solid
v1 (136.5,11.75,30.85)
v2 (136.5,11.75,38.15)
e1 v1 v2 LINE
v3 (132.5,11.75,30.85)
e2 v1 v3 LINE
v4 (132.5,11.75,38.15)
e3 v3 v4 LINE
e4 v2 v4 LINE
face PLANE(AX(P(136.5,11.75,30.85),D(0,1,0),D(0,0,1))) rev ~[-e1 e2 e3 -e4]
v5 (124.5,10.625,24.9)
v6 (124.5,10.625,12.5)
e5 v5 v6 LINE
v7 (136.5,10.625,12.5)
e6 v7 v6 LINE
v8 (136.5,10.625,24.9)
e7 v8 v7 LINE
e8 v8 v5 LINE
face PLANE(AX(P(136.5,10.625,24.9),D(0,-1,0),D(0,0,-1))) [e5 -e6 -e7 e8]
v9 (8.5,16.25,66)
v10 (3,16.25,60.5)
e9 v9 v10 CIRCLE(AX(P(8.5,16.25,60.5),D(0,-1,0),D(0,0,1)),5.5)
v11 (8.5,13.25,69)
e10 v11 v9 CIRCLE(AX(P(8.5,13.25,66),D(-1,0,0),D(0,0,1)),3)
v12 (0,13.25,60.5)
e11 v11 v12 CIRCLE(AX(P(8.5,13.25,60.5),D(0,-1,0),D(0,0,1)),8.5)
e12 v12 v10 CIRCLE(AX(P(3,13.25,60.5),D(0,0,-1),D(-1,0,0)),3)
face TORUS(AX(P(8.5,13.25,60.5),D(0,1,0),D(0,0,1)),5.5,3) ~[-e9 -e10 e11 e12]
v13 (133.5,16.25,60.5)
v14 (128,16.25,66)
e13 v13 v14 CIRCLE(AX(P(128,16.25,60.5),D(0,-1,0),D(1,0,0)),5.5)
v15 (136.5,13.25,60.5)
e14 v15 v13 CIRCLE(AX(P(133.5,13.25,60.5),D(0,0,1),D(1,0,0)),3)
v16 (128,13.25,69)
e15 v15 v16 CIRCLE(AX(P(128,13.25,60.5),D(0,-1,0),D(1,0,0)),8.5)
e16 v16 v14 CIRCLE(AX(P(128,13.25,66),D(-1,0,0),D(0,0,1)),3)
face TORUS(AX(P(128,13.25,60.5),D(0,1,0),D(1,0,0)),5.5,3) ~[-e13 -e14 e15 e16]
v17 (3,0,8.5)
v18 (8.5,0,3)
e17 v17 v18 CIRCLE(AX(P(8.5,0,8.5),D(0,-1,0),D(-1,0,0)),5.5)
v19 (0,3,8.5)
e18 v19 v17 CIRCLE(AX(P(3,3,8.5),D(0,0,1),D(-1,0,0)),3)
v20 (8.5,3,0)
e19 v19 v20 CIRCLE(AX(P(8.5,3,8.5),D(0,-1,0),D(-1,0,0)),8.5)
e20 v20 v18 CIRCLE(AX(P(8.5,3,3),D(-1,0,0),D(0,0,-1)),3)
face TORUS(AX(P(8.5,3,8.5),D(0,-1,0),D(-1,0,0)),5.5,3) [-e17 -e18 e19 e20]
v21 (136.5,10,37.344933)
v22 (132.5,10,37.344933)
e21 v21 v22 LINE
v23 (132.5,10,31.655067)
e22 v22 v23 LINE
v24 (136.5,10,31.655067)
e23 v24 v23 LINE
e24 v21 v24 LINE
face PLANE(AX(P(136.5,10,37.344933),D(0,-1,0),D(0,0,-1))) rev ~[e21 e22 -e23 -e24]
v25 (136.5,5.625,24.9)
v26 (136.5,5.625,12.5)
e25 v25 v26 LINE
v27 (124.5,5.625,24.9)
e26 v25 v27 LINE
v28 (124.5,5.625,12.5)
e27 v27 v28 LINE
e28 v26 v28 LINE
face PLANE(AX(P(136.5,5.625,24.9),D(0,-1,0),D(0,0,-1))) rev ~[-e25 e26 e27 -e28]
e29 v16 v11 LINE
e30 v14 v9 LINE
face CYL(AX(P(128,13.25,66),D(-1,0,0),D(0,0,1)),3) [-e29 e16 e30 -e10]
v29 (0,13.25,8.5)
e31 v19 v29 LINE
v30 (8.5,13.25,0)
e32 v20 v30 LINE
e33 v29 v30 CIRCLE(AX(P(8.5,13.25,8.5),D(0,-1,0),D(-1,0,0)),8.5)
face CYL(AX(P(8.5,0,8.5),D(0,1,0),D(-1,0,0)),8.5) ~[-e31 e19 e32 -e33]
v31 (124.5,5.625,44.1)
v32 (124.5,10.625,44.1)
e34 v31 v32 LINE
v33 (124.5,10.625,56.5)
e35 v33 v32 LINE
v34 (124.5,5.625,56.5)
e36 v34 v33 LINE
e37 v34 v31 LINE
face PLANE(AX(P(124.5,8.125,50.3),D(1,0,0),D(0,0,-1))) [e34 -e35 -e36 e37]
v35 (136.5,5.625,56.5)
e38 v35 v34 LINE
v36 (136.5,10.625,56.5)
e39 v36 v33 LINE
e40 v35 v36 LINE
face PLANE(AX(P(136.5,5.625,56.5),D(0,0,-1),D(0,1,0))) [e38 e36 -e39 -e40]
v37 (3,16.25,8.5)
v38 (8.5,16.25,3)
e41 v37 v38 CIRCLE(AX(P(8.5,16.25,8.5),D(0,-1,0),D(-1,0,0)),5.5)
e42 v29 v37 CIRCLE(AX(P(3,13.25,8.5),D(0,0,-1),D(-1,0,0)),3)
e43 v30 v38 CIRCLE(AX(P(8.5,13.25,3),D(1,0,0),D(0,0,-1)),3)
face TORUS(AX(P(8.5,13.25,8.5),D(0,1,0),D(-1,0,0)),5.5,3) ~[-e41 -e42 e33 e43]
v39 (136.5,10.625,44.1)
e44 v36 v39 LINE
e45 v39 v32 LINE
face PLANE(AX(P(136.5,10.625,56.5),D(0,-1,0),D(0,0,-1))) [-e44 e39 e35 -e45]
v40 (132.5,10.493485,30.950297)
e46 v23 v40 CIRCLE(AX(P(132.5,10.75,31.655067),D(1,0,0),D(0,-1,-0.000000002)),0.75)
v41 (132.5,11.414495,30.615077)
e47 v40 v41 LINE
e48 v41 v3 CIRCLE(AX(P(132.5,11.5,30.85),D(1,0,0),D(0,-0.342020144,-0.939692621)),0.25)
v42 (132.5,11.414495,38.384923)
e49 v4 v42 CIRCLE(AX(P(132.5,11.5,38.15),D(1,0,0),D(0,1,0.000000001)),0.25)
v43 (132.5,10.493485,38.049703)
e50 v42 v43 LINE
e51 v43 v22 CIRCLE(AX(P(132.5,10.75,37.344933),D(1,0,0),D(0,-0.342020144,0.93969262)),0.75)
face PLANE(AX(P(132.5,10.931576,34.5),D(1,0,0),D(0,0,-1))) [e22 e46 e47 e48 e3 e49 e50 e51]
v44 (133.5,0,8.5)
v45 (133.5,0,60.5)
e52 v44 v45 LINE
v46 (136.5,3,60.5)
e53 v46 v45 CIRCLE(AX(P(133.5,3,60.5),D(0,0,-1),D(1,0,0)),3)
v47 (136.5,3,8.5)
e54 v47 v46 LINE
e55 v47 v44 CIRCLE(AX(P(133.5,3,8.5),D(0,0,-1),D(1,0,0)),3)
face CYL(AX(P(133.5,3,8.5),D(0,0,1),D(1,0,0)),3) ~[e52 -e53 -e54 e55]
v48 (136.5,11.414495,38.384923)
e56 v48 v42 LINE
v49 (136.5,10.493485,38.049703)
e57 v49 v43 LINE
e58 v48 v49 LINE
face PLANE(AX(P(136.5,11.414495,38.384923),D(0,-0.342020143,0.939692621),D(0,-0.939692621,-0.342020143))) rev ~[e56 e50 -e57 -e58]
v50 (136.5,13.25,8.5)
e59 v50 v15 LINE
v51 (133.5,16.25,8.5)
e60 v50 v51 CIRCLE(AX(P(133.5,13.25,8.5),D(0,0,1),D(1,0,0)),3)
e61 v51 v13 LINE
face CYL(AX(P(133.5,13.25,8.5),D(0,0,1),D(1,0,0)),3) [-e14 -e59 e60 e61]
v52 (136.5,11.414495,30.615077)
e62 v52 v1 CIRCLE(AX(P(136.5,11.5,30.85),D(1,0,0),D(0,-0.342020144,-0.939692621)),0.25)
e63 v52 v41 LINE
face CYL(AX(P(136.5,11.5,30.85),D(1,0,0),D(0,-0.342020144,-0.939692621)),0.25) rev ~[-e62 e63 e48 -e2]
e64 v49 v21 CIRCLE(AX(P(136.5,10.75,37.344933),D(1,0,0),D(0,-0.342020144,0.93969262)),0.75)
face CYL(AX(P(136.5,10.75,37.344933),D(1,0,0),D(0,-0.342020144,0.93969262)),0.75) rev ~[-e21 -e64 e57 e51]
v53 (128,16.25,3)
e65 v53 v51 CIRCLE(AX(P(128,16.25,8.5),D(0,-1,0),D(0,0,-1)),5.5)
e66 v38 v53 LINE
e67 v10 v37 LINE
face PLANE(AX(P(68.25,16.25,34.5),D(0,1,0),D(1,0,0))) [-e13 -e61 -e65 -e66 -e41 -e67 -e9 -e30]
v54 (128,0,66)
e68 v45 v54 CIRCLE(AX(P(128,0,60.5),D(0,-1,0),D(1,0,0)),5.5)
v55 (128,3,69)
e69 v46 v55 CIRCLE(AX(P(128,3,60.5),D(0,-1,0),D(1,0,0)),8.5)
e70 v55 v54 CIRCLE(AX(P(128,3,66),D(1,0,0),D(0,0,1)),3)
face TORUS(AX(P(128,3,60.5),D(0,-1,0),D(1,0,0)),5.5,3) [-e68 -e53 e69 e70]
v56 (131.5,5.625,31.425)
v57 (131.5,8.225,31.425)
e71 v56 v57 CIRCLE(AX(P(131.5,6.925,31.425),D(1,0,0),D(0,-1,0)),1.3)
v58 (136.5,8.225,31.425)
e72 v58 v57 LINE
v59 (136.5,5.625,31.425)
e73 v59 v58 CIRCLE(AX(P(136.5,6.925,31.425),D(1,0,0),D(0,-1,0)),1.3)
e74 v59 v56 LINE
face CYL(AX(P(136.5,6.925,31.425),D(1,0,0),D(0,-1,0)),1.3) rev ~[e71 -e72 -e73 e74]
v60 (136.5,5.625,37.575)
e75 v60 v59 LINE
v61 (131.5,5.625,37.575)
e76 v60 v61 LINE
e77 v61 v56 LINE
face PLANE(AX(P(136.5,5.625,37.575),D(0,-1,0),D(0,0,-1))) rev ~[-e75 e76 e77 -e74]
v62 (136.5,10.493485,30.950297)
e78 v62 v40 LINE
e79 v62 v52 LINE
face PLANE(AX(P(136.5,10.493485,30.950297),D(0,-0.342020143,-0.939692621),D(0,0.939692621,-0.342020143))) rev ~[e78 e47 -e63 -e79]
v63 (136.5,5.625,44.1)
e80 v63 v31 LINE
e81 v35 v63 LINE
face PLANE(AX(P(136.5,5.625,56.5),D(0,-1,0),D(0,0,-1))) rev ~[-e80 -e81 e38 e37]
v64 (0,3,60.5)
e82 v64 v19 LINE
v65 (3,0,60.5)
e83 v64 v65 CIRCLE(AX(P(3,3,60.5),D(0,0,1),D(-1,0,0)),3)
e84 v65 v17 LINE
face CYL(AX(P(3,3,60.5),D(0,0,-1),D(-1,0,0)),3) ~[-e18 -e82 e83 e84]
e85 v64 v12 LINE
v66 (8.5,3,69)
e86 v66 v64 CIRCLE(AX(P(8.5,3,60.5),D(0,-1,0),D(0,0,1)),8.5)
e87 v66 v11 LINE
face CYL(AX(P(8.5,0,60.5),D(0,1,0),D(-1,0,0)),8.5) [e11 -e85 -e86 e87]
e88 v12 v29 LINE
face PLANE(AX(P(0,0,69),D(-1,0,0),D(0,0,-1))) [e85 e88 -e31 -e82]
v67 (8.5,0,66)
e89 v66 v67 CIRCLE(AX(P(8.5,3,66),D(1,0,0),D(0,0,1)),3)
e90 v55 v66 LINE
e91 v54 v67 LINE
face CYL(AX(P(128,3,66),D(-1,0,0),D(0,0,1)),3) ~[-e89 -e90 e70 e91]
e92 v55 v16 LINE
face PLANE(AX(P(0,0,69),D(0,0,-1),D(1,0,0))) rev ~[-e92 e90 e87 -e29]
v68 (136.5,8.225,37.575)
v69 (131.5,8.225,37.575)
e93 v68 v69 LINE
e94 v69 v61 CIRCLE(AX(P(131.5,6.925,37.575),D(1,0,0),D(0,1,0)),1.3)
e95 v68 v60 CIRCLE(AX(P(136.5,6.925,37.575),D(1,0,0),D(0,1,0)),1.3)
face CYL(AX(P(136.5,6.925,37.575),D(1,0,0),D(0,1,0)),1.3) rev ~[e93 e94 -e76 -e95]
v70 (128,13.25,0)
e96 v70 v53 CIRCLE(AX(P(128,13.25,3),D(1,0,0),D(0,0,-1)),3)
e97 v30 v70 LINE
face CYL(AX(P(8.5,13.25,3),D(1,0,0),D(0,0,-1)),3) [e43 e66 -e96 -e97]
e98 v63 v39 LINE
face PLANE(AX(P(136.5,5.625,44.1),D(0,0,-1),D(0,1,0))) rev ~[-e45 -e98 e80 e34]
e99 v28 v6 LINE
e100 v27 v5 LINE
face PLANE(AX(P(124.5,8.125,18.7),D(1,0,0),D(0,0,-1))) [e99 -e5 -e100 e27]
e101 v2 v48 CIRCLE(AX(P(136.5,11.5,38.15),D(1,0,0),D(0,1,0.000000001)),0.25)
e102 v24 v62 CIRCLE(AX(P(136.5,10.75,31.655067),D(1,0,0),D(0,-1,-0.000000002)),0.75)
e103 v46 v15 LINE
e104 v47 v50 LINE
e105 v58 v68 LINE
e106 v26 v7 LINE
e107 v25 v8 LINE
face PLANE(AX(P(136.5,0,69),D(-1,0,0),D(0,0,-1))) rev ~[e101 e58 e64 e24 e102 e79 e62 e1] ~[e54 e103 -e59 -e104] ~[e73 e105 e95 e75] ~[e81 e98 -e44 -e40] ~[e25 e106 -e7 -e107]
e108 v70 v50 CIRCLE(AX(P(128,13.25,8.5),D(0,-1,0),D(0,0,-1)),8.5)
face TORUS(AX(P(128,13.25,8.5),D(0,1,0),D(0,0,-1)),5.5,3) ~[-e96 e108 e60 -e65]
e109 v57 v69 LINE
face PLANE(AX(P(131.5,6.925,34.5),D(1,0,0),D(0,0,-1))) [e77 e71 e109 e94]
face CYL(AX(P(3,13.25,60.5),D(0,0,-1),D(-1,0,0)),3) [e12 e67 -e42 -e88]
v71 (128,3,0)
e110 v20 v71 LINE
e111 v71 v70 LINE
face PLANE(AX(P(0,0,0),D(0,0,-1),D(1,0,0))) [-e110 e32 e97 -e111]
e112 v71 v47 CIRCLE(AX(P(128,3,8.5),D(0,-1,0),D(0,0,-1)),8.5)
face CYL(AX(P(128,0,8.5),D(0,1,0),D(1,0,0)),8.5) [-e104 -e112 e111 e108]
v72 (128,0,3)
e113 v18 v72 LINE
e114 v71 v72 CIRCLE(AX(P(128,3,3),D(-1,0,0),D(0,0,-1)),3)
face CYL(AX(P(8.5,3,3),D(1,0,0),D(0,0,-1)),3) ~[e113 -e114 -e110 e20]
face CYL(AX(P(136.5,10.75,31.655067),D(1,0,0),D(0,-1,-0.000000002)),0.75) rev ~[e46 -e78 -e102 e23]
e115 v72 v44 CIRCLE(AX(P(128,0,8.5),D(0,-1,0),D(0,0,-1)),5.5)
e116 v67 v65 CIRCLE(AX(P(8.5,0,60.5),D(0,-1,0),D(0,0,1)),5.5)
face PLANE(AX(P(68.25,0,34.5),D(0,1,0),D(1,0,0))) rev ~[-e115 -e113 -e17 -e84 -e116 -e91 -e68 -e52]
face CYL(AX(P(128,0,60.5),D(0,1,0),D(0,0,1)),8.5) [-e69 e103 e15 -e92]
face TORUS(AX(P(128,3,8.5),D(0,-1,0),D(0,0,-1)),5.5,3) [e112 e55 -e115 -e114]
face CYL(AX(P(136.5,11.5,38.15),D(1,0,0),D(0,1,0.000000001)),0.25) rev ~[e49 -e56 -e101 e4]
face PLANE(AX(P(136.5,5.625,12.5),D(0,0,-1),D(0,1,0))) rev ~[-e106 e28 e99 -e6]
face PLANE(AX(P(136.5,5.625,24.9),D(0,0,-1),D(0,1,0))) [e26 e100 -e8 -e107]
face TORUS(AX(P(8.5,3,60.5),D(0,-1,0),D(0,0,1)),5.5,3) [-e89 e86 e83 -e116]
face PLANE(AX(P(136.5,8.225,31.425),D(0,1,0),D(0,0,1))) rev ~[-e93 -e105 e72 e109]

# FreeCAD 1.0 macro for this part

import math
import FreeCAD as App
import Part
import Sketcher
Q = App.Units.Quantity


def edges_at(feature, points):
    """Names of the edges that pass closest to the given points."""
    edges = feature.Shape.Edges
    near = lambda p: min(range(len(edges)), key=lambda i: edges[i].distToShape(Part.Vertex(*p))[0])
    return sorted({f"Edge{near(p) + 1}" for p in points})


def add_polygon(sketch, points):
    """Adds a closed chain of lines whose ends are joined by coincident constraints."""
    first, n = sketch.GeometryCount, len(points)
    for a, b in zip(points, points[1:] + points[:1]):
        sketch.addGeometry(Part.LineSegment(App.Vector(*a, 0), App.Vector(*b, 0)), False)
    for i in range(n):
        sketch.addConstraint(Sketcher.Constraint("Coincident", first + i, 2, first + (i + 1) % n, 1))

doc = App.newDocument("Part")
body = doc.addObject("PartDesign::Body", "Body")

# Sketch on XZ plane
sketch1 = body.newObject("Sketcher::SketchObject", "Sketch")
sketch1.AttachmentSupport = (doc.getObject("XZ_Plane"), [""])
sketch1.MapMode = "FlatFace"
add_polygon(sketch1, [(0, 0), (0, 69), (136.5, 69), (136.5, 0)])  # lines 0-3
sketch1.addConstraint([
    Sketcher.Constraint("Vertical", 0),
    Sketcher.Constraint("Horizontal", 1),
    Sketcher.Constraint("Vertical", 2),
    Sketcher.Constraint("Horizontal", 3),
    Sketcher.Constraint("Coincident", 3, 2, -1, 1),
    Sketcher.Constraint("DistanceY", 0, 1, 0, 2, 69.0),
    Sketcher.Constraint("DistanceX", 1, 1, 1, 2, 136.5),
])
pad1 = body.newObject("PartDesign::Pad", "Pad")
pad1.Profile = sketch1
pad1.Length = 16.25
pad1.Reversed = True
doc.recompute()

fillet = body.newObject("PartDesign::Fillet", "Fillet")
fillet.Base = (pad1, edges_at(pad1, [
    (0, 8.125, 0),
    (136.5, 8.125, 0),
    (136.5, 8.125, 69),
    (0, 8.125, 69),
]))
fillet.Radius = 8.5
doc.recompute()

fillet2 = body.newObject("PartDesign::Fillet", "Fillet001")
fillet2.Base = (fillet, edges_at(fillet, [
    (0, 0, 34.5),
    (0, 16.25, 34.5),
    (68.25, 0, 0),
    (136.5, 0, 34.5),
    (68.25, 0, 69),
    (134.01, 0, 66.51),
    (134.01, 0, 2.49),
    (2.49, 0, 66.51),
    (2.49, 0, 2.49),
    (68.25, 16.25, 0),
    (68.25, 16.25, 69),
    (136.5, 16.25, 34.5),
    (134.01, 16.25, 66.51),
    (134.01, 16.25, 2.49),
    (2.49, 16.25, 66.51),
    (2.49, 16.25, 2.49),
]))
fillet2.Radius = 3

# Sketch on YZ plane
sketch2 = body.newObject("Sketcher::SketchObject", "Sketch001")
sketch2.AttachmentSupport = (doc.getObject("YZ_Plane"), [""])
sketch2.MapMode = "FlatFace"
sketch2.AttachmentOffset = App.Placement(App.Vector(0, 0, 136.5), App.Rotation())
add_polygon(sketch2, [(10.625, 24.9), (5.625, 24.9), (5.625, 12.5), (10.625, 12.5)])  # lines 0-3
add_polygon(sketch2, [(10.625, 56.5), (5.625, 56.5), (5.625, 44.1), (10.625, 44.1)])  # lines 4-7
sketch2.addConstraint([
    Sketcher.Constraint("Horizontal", 0),
    Sketcher.Constraint("Vertical", 1),
    Sketcher.Constraint("Horizontal", 2),
    Sketcher.Constraint("Vertical", 3),
    Sketcher.Constraint("Horizontal", 4),
    Sketcher.Constraint("Vertical", 5),
    Sketcher.Constraint("Horizontal", 6),
    Sketcher.Constraint("Vertical", 7),
    Sketcher.Constraint("Vertical", 1, 2, 4, 2),
    Sketcher.Constraint("Vertical", 3, 2, 6, 2),
    Sketcher.Constraint("Equal", 3, 5),
    Sketcher.Constraint("DistanceX", 0, 2, 0, 1, 5.0),
    Sketcher.Constraint("DistanceY", 1, 2, 1, 1, 12.4),
    Sketcher.Constraint("DistanceY", 1, 2, 4, 2, 44.0),
    Sketcher.Constraint("DistanceY", -1, 1, 0, 2, 24.9),
    Sketcher.Constraint("DistanceX", -1, 1, 0, 2, 5.625),
])
pocket1 = body.newObject("PartDesign::Pocket", "Pocket")
pocket1.Profile = sketch2
pocket1.Length = 12

# Sketch on YZ plane
sketch3 = body.newObject("Sketcher::SketchObject", "Sketch002")
sketch3.AttachmentSupport = (doc.getObject("YZ_Plane"), [""])
sketch3.MapMode = "FlatFace"
sketch3.AttachmentOffset = App.Placement(App.Vector(0, 0, 136.5), App.Rotation())
sketch3.addGeometry([
    Part.LineSegment(App.Vector(5.625, 37.575, 0), App.Vector(5.625, 31.425, 0)),
    Part.ArcOfCircle(Part.Circle(App.Vector(6.925, 31.425, 0), App.Vector(0, 0, 1), 1.3), math.radians(180), math.radians(360)),
    Part.LineSegment(App.Vector(8.225, 31.425, 0), App.Vector(8.225, 37.575, 0)),
    Part.ArcOfCircle(Part.Circle(App.Vector(6.925, 37.575, 0), App.Vector(0, 0, 1), 1.3), math.radians(0), math.radians(180)),
], False)
sketch3.addConstraint([
    Sketcher.Constraint("Tangent", 0, 2, 1, 1),
    Sketcher.Constraint("Tangent", 1, 2, 2, 1),
    Sketcher.Constraint("Tangent", 2, 2, 3, 1),
    Sketcher.Constraint("Tangent", 3, 2, 0, 1),
    Sketcher.Constraint("Vertical", 0),
    Sketcher.Constraint("Vertical", 2),
    Sketcher.Constraint("Radius", 1, 1.3),
    Sketcher.Constraint("DistanceY", 0, 2, 0, 1, 6.15),
    Sketcher.Constraint("DistanceX", -1, 1, 1, 3, 6.925),
    Sketcher.Constraint("DistanceY", -1, 1, 1, 3, 31.425),
])
pocket2 = body.newObject("PartDesign::Pocket", "Pocket001")
pocket2.Profile = sketch3
pocket2.Length = 5

# Sketch on YZ plane
sketch4 = body.newObject("Sketcher::SketchObject", "Sketch003")
sketch4.AttachmentSupport = (doc.getObject("YZ_Plane"), [""])
sketch4.MapMode = "FlatFace"
sketch4.AttachmentOffset = App.Placement(App.Vector(0, 0, 136.5), App.Rotation())
sketch4.addGeometry([
    Part.LineSegment(App.Vector(10, 37.344933, 0), App.Vector(10, 31.655067, 0)),  # 0
    Part.ArcOfCircle(Part.Circle(App.Vector(10.75, 31.655067, 0), App.Vector(0, 0, 1), 0.75), math.radians(-180), math.radians(-110)),  # 1
    Part.LineSegment(App.Vector(10.493485, 30.950297, 0), App.Vector(11.414495, 30.615077, 0)),  # 2
    Part.ArcOfCircle(Part.Circle(App.Vector(11.5, 30.85, 0), App.Vector(0, 0, 1), 0.25), math.radians(-110), math.radians(0)),  # 3
    Part.LineSegment(App.Vector(11.75, 30.85, 0), App.Vector(11.75, 38.15, 0)),  # 4
    Part.ArcOfCircle(Part.Circle(App.Vector(11.5, 38.15, 0), App.Vector(0, 0, 1), 0.25), math.radians(0), math.radians(110)),  # 5
    Part.LineSegment(App.Vector(11.414495, 38.384923, 0), App.Vector(10.493485, 38.049703, 0)),  # 6
    Part.ArcOfCircle(Part.Circle(App.Vector(10.75, 37.344933, 0), App.Vector(0, 0, 1), 0.75), math.radians(110), math.radians(180)),  # 7
], False)
sketch4.addConstraint([
    Sketcher.Constraint("Tangent", 0, 2, 1, 1),
    Sketcher.Constraint("Tangent", 1, 2, 2, 1),
    Sketcher.Constraint("Tangent", 2, 2, 3, 1),
    Sketcher.Constraint("Tangent", 3, 2, 4, 1),
    Sketcher.Constraint("Tangent", 4, 2, 5, 1),
    Sketcher.Constraint("Tangent", 5, 2, 6, 1),
    Sketcher.Constraint("Tangent", 6, 2, 7, 1),
    Sketcher.Constraint("Tangent", 7, 2, 0, 1),
    Sketcher.Constraint("Vertical", 0),
    Sketcher.Constraint("Vertical", 4),
    Sketcher.Constraint("Equal", 3, 5),
    Sketcher.Constraint("Equal", 1, 7),
    Sketcher.Constraint("Vertical", 2, 2, 5, 2),
    Sketcher.Constraint("Angle", 2, Q("-20 deg")),
    Sketcher.Constraint("Radius", 1, 0.75),
    Sketcher.Constraint("Radius", 3, 0.25),
    Sketcher.Constraint("DistanceY", 4, 1, 4, 2, 7.3),
    Sketcher.Constraint("DistanceX", -1, 1, 0, 2, 10.0),
    Sketcher.Constraint("DistanceX", 1, 3, 3, 2, 1.0),
    Sketcher.Constraint("DistanceY", -1, 1, 3, 3, 30.85),
])
pocket3 = body.newObject("PartDesign::Pocket", "Pocket002")
pocket3.Profile = sketch4
pocket3.Length = 4

doc.recompute()
